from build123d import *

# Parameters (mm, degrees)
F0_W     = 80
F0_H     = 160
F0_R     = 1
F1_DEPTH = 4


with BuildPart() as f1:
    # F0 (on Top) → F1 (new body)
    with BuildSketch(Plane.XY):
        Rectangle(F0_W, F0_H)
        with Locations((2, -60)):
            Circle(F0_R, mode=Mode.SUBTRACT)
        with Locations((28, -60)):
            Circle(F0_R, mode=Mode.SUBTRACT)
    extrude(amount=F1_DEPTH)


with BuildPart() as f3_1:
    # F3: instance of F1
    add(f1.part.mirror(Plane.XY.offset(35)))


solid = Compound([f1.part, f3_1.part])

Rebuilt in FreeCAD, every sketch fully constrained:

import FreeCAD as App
import Part
import Sketcher
from FreeCAD import Vector
Q = App.Units.Quantity

doc = App.newDocument("Part")
body = doc.addObject("PartDesign::Body", "Body")

sketch1 = body.newObject("Sketcher::SketchObject", "Sketch")
sketch1.AttachmentSupport = (doc.getObject("XY_Plane"), [""])
sketch1.MapMode = "FlatFace"
sketch1.addGeometry(Part.LineSegment(Vector(-40, 80, 0), Vector(-40, -80, 0)), False)
sketch1.addGeometry(Part.LineSegment(Vector(-40, -80, 0), Vector(40, -80, 0)), False)
sketch1.addGeometry(Part.LineSegment(Vector(40, -80, 0), Vector(40, 80, 0)), False)
sketch1.addGeometry(Part.LineSegment(Vector(40, 80, 0), Vector(-40, 80, 0)), False)
sketch1.addGeometry(Part.Circle(Vector(2, -60, 0), Vector(0, 0, 1), 1), False)
sketch1.addGeometry(Part.Circle(Vector(28, -60, 0), Vector(0, 0, 1), 1), False)
sketch1.addConstraint(Sketcher.Constraint("Coincident", 0, 2, 1, 1))
sketch1.addConstraint(Sketcher.Constraint("Coincident", 1, 2, 2, 1))
sketch1.addConstraint(Sketcher.Constraint("Coincident", 2, 2, 3, 1))
sketch1.addConstraint(Sketcher.Constraint("Coincident", 3, 2, 0, 1))
sketch1.addConstraint(Sketcher.Constraint("Vertical", 0))
sketch1.addConstraint(Sketcher.Constraint("Horizontal", 1))
sketch1.addConstraint(Sketcher.Constraint("Vertical", 2))
sketch1.addConstraint(Sketcher.Constraint("Horizontal", 3))
sketch1.addConstraint(Sketcher.Constraint("Equal", 4, 5))
sketch1.addConstraint(Sketcher.Constraint("Symmetric", 0, 2, 2, 2, -1, 1))
sketch1.addConstraint(Sketcher.Constraint("Horizontal", 4, 3, 5, 3))
sketch1.addConstraint(Sketcher.Constraint("Diameter", 4, Q("2 mm")))
sketch1.addConstraint(Sketcher.Constraint("DistanceX", 1, 1, 1, 2, Q("80 mm")))
sketch1.addConstraint(Sketcher.Constraint("DistanceY", 0, 2, 0, 1, Q("160 mm")))
sketch1.addConstraint(Sketcher.Constraint("DistanceX", -1, 1, 4, 3, Q("2 mm")))
sketch1.addConstraint(Sketcher.Constraint("DistanceY", 4, 3, -1, 1, Q("60 mm")))
sketch1.addConstraint(Sketcher.Constraint("DistanceX", -1, 1, 5, 3, Q("28 mm")))
pad1 = body.newObject("PartDesign::Pad", "Pad")
pad1.Profile = sketch1
pad1.Length = 4
body2 = doc.addObject("PartDesign::Body", "Body001")
doc.recompute()

mirroring = doc.addObject("Part::Mirroring", "Mirroring")
mirroring.Source = body
mirroring.Base = Vector(0, 0, 35)
mirroring.Normal = Vector(0, 0, 1)
body2.BaseFeature = mirroring
doc.recompute()
mirroring.Visibility = False

doc.recompute()
